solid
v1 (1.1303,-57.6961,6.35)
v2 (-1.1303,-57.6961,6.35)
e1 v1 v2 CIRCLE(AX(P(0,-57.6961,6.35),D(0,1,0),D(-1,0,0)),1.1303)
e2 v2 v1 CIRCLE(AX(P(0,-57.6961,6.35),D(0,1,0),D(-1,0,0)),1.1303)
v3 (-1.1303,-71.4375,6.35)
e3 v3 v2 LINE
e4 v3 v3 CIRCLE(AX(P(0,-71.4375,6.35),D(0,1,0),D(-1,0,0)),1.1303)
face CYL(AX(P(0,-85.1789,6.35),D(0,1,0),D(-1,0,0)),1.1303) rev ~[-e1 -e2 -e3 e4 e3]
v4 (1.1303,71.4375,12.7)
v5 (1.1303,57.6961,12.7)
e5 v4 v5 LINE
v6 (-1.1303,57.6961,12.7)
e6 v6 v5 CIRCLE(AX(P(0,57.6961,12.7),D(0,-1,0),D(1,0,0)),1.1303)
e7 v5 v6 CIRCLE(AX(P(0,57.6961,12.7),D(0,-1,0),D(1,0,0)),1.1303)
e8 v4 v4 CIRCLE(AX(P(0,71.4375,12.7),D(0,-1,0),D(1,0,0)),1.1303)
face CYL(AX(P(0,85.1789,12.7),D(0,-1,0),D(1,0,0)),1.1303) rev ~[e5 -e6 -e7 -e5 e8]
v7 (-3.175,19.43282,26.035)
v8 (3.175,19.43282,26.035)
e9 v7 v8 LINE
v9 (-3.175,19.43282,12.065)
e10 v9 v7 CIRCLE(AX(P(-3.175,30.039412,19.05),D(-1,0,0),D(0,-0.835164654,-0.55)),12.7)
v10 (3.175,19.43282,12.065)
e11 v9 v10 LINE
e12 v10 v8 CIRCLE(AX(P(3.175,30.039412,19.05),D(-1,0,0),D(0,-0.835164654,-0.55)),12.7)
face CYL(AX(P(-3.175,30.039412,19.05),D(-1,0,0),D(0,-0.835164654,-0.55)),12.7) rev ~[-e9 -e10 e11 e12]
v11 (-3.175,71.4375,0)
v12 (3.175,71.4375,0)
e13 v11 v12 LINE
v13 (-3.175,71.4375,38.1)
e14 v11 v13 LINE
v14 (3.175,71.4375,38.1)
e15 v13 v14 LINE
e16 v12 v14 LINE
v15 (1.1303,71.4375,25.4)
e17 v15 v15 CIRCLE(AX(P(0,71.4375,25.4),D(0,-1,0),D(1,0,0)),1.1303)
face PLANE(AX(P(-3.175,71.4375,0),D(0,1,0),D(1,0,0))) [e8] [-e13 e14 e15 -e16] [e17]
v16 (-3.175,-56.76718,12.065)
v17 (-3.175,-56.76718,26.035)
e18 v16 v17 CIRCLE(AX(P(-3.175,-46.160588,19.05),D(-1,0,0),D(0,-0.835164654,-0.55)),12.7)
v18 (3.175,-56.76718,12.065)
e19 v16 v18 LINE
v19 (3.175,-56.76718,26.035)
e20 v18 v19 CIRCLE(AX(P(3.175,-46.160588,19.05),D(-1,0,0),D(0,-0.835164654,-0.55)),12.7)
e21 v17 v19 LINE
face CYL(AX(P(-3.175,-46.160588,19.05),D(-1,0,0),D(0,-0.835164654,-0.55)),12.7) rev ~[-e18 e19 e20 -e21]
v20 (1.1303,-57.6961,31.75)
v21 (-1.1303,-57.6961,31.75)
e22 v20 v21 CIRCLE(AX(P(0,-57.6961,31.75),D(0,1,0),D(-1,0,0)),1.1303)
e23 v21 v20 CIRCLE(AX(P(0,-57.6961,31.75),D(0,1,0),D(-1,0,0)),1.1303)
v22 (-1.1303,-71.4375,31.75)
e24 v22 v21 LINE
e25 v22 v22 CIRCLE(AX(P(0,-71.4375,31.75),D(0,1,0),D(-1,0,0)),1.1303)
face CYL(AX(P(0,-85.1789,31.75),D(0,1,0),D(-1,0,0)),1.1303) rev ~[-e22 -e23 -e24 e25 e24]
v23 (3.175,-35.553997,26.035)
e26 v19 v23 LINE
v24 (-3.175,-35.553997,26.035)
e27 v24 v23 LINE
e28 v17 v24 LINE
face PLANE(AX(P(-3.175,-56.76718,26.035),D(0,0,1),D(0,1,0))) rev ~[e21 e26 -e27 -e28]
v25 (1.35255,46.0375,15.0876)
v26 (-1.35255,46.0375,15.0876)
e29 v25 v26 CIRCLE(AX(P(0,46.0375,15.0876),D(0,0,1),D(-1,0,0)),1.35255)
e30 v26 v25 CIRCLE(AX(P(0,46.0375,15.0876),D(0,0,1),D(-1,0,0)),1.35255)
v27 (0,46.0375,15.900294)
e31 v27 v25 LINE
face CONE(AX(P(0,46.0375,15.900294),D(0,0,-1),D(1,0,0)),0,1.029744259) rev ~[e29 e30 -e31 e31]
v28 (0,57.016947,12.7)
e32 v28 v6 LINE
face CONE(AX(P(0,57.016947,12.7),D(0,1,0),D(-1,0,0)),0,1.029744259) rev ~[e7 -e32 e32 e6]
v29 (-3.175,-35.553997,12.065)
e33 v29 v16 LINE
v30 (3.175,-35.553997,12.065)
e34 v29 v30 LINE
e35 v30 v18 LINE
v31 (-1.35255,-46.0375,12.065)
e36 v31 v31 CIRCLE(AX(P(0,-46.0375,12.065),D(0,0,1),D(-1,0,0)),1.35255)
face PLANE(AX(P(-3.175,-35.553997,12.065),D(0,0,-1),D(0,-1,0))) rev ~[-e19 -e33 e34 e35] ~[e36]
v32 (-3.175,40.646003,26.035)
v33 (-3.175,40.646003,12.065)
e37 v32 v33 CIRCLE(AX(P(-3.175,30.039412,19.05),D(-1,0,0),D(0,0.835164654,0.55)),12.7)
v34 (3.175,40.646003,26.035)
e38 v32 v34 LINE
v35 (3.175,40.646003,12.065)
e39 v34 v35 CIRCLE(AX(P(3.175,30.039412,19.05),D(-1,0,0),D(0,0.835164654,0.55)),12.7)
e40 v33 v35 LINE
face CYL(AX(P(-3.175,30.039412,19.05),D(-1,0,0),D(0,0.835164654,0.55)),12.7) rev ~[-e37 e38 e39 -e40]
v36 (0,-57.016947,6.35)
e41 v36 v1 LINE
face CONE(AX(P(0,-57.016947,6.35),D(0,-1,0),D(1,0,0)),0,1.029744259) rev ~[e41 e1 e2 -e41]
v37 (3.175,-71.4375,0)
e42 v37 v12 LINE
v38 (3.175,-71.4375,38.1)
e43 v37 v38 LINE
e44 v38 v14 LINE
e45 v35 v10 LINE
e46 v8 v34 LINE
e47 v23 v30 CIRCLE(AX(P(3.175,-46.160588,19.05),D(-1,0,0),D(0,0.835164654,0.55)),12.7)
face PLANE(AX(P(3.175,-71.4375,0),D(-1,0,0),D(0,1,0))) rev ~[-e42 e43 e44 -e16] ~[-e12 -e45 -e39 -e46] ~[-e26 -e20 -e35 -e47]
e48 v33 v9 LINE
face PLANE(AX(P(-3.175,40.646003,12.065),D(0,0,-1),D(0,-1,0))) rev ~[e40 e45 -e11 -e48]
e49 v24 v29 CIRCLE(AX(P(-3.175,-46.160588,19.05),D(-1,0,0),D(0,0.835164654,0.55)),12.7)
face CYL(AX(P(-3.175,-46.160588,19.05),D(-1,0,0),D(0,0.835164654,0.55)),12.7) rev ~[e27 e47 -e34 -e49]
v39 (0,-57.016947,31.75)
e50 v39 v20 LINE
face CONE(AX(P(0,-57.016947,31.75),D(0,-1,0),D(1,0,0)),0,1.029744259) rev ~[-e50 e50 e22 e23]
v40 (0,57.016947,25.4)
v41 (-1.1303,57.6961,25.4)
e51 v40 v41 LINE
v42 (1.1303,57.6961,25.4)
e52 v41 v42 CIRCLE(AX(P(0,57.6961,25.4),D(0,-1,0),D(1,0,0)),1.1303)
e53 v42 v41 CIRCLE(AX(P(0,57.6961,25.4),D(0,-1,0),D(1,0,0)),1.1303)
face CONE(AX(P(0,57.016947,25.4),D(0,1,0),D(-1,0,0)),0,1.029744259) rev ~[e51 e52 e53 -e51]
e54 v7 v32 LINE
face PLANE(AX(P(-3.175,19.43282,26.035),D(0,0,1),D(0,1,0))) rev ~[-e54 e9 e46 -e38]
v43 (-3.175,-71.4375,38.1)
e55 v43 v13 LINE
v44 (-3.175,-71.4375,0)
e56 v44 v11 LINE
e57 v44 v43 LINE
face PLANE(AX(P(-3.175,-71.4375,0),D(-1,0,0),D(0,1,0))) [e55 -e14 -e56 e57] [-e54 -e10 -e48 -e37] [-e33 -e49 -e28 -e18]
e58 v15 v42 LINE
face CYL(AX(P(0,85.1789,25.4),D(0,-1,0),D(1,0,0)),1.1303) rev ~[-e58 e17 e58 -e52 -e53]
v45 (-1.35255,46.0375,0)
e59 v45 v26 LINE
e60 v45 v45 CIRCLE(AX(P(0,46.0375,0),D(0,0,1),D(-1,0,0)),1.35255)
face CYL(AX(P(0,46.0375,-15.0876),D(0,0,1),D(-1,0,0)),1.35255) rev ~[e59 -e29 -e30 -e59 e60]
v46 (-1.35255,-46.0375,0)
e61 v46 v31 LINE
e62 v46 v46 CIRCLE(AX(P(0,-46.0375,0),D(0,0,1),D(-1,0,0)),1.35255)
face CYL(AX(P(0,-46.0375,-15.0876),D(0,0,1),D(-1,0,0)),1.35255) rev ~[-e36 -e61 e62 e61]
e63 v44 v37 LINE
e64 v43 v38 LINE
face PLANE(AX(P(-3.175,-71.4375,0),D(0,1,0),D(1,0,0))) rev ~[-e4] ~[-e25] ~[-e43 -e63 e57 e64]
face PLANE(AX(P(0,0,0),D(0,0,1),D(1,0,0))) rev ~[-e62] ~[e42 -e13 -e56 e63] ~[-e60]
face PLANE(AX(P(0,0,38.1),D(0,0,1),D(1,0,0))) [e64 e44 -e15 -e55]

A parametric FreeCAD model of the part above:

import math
import FreeCAD as App
import Part
import Sketcher
from FreeCAD import Vector
Q = App.Units.Quantity


def add_polygon(sketch, points):
    """Adds a closed chain of lines whose ends are joined by coincident constraints."""
    first, n = sketch.GeometryCount, len(points)
    for a, b in zip(points, points[1:] + points[:1]):
        sketch.addGeometry(Part.LineSegment(App.Vector(*a, 0), App.Vector(*b, 0)), False)
    for i in range(n):
        sketch.addConstraint(Sketcher.Constraint("Coincident", first + i, 2, first + (i + 1) % n, 1))

doc = App.newDocument("Part")
params = doc.addObject("Spreadsheet::Sheet", "Params")
for row, (alias, value) in enumerate([
    ("sketch1_width", "0.25 in"),
    ("sketch1_height", "5.625 in"),
    ("pad1_length", "1.5 in"),
    ("hole_diameter", "0.1065 in"),
    ("hole_depth", "0.594 in"),
    ("sketch3_diameter", "0.089 in"),
    ("hole2_diameter", "0.089 in"),
    ("hole2_depth", "0.541 in"),
    ("sketch4_diameter", "0.089 in"),
    ("hole3_diameter", "0.089 in"),
    ("hole3_depth", "0.541 in"),
    ("sketch5_radius", "0.5 in"),
    ("pocket1_length", "1 in"),
], start=1):
    params.set(f"A{row}", alias)
    params.set(f"B{row}", "=" + value)
    params.setAlias(f"B{row}", alias)

body = doc.addObject("PartDesign::Body", "Body")

# Sketch on XY plane
sketch1 = body.newObject("Sketcher::SketchObject", "Sketch")
sketch1.AttachmentSupport = (doc.getObject("XY_Plane"), [""])
sketch1.MapMode = "FlatFace"
add_polygon(sketch1, [(-3, 71), (-3, -71), (3, -71), (3, 71)])  # lines 0-3
sketch1.addConstraint(Sketcher.Constraint("Vertical", 0))
sketch1.addConstraint(Sketcher.Constraint("Horizontal", 1))
sketch1.addConstraint(Sketcher.Constraint("Vertical", 2))
sketch1.addConstraint(Sketcher.Constraint("Horizontal", 3))
sketch1.addConstraint(Sketcher.Constraint("Symmetric", 0, 2, 2, 2, -1, 1))
sketch1.addConstraint(Sketcher.Constraint("DistanceX", 1, 1, 1, 2, Q("0.25 in")))
sketch1.addConstraint(Sketcher.Constraint("DistanceY", 0, 2, 0, 1, Q("5.625 in")))
sketch1.setExpression("Constraints[9]", "Params.sketch1_width")
sketch1.setExpression("Constraints[10]", "Params.sketch1_height")
pad1 = body.newObject("PartDesign::Pad", "Pad")
pad1.Profile = sketch1
pad1.setExpression("Length", "Params.pad1_length")

# Sketch on XY plane
sketch2 = body.newObject("Sketcher::SketchObject", "Sketch001")
sketch2.AttachmentSupport = (doc.getObject("XY_Plane"), [""])
sketch2.MapMode = "FlatFace"
sketch2.addGeometry(Part.Circle(Vector(0, -46, 0), Vector(0, 0, 1), 1.4), False)
sketch2.addGeometry(Part.Circle(Vector(0, 46, 0), Vector(0, 0, 1), 1.4), False)
sketch2.addConstraint(Sketcher.Constraint("Equal", 0, 1))
sketch2.addConstraint(Sketcher.Constraint("Symmetric", 0, 3, 1, 3, -1, 1))
sketch2.addConstraint(Sketcher.Constraint("PointOnObject", 0, 3, -2))
sketch2.addConstraint(Sketcher.Constraint("Diameter", 0, Q("0.1065 in")))
sketch2.addConstraint(Sketcher.Constraint("DistanceY", 0, 3, -1, 1, Q("1.8125 in")))
doc.recompute()
hole = body.newObject("PartDesign::Hole", "Hole")
hole.Profile = sketch2
hole.ThreadType = "None"
hole.setExpression("Diameter", "Params.hole_diameter")
hole.DepthType = "Dimension"
hole.setExpression("Depth", "Params.hole_depth")
hole.DrillPoint = "Angled"
hole.DrillPointAngle = 118
hole.Reversed = True

# Sketch on XZ plane
sketch3 = body.newObject("Sketcher::SketchObject", "Sketch002")
sketch3.AttachmentSupport = (doc.getObject("XZ_Plane"), [""])
sketch3.MapMode = "FlatFace"
sketch3.AttachmentOffset = App.Placement(Vector(0, 0, 2.8125 * 25.4), App.Rotation())
sketch3.addGeometry(Part.Circle(Vector(0, 31.8, 0), Vector(0, 0, 1), 1.1), False)
sketch3.addGeometry(Part.Circle(Vector(0, 6.3, 0), Vector(0, 0, 1), 1.1), False)
sketch3.addConstraint(Sketcher.Constraint("Equal", 0, 1))
sketch3.addConstraint(Sketcher.Constraint("PointOnObject", 0, 3, -2))
sketch3.addConstraint(Sketcher.Constraint("PointOnObject", 1, 3, -2))
sketch3.addConstraint(Sketcher.Constraint("Diameter", 0, Q("0.089 in")))
sketch3.addConstraint(Sketcher.Constraint("DistanceY", 1, 3, 0, 3, Q("1 in")))
sketch3.addConstraint(Sketcher.Constraint("DistanceY", -1, 1, 0, 3, Q("1.25 in")))
sketch3.setExpression("Constraints[3]", "Params.sketch3_diameter")
doc.recompute()
hole2 = body.newObject("PartDesign::Hole", "Hole001")
hole2.Profile = sketch3
hole2.ThreadType = "None"
hole2.setExpression("Diameter", "Params.hole2_diameter")
hole2.DepthType = "Dimension"
hole2.setExpression("Depth", "Params.hole2_depth")
hole2.DrillPoint = "Angled"
hole2.DrillPointAngle = 118

# Sketch on XZ plane
sketch4 = body.newObject("Sketcher::SketchObject", "Sketch003")
sketch4.AttachmentSupport = (doc.getObject("XZ_Plane"), [""])
sketch4.MapMode = "FlatFace"
sketch4.AttachmentOffset = App.Placement(Vector(0, 0, -2.8125 * 25.4), App.Rotation())
sketch4.addGeometry(Part.Circle(Vector(0, 25.4, 0), Vector(0, 0, 1), 1.1), False)
sketch4.addGeometry(Part.Circle(Vector(0, 12.7, 0), Vector(0, 0, 1), 1.1), False)
sketch4.addConstraint(Sketcher.Constraint("Equal", 0, 1))
sketch4.addConstraint(Sketcher.Constraint("PointOnObject", 0, 3, -2))
sketch4.addConstraint(Sketcher.Constraint("PointOnObject", 1, 3, -2))
sketch4.addConstraint(Sketcher.Constraint("Diameter", 0, Q("0.089 in")))
sketch4.addConstraint(Sketcher.Constraint("DistanceY", -1, 1, 0, 3, Q("1 in")))
sketch4.addConstraint(Sketcher.Constraint("DistanceY", -1, 1, 1, 3, Q("0.5 in")))
sketch4.setExpression("Constraints[3]", "Params.sketch4_diameter")
doc.recompute()
hole3 = body.newObject("PartDesign::Hole", "Hole002")
hole3.Profile = sketch4
hole3.ThreadType = "None"
hole3.setExpression("Diameter", "Params.hole3_diameter")
hole3.DepthType = "Dimension"
hole3.setExpression("Depth", "Params.hole3_depth")
hole3.DrillPoint = "Angled"
hole3.DrillPointAngle = 118
hole3.Reversed = True

# Sketch on YZ plane
sketch5 = body.newObject("Sketcher::SketchObject", "Sketch004")
sketch5.AttachmentSupport = (doc.getObject("YZ_Plane"), [""])
sketch5.MapMode = "FlatFace"
sketch5.AttachmentOffset = App.Placement(Vector(0, 0, -0.125 * 25.4), App.Rotation())
sketch5.addGeometry(Part.LineSegment(Vector(19, 26, 0), Vector(41, 26, 0)), False)
sketch5.addGeometry(Part.ArcOfCircle(Part.Circle(Vector(30, 19, 0), Vector(0, 0, 1), 13), math.radians(-33), math.radians(33)), False)
sketch5.addGeometry(Part.LineSegment(Vector(41, 12, 0), Vector(19, 12, 0)), False)
sketch5.addGeometry(Part.ArcOfCircle(Part.Circle(Vector(30, 19, 0), Vector(0, 0, 1), 13), math.radians(147), math.radians(213)), False)
sketch5.addGeometry(Part.LineSegment(Vector(-36, 12, 0), Vector(-57, 12, 0)), False)
sketch5.addGeometry(Part.ArcOfCircle(Part.Circle(Vector(-46, 19, 0), Vector(0, 0, 1), 13), math.radians(147), math.radians(213)), False)
sketch5.addGeometry(Part.LineSegment(Vector(-57, 26, 0), Vector(-36, 26, 0)), False)
sketch5.addGeometry(Part.ArcOfCircle(Part.Circle(Vector(-46, 19, 0), Vector(0, 0, 1), 13), math.radians(-33), math.radians(33)), False)
sketch5.addConstraint(Sketcher.Constraint("Coincident", 0, 2, 1, 2))
sketch5.addConstraint(Sketcher.Constraint("Coincident", 1, 1, 2, 1))
sketch5.addConstraint(Sketcher.Constraint("Coincident", 2, 2, 3, 2))
sketch5.addConstraint(Sketcher.Constraint("Coincident", 3, 1, 0, 1))
sketch5.addConstraint(Sketcher.Constraint("Coincident", 4, 2, 5, 2))
sketch5.addConstraint(Sketcher.Constraint("Coincident", 5, 1, 6, 1))
sketch5.addConstraint(Sketcher.Constraint("Coincident", 6, 2, 7, 2))
sketch5.addConstraint(Sketcher.Constraint("Coincident", 7, 1, 4, 1))
sketch5.addConstraint(Sketcher.Constraint("Horizontal", 0))
sketch5.addConstraint(Sketcher.Constraint("Horizontal", 2))
sketch5.addConstraint(Sketcher.Constraint("Horizontal", 4))
sketch5.addConstraint(Sketcher.Constraint("Horizontal", 6))
sketch5.addConstraint(Sketcher.Constraint("Coincident", 3, 3, 1, 3))
sketch5.addConstraint(Sketcher.Constraint("Coincident", 7, 3, 5, 3))
sketch5.addConstraint(Sketcher.Constraint("Equal", 1, 3))
sketch5.addConstraint(Sketcher.Constraint("Equal", 3, 5))
sketch5.addConstraint(Sketcher.Constraint("Equal", 5, 7))
sketch5.addConstraint(Sketcher.Constraint("Horizontal", 3, 3, 5, 3))
sketch5.addConstraint(Sketcher.Constraint("Horizontal", 2, 2, 4, 2))
sketch5.addConstraint(Sketcher.Constraint("Horizontal", 3, 1, 5, 1))
sketch5.addConstraint(Sketcher.Constraint("Vertical", 0, 2, 1, 1))
sketch5.addConstraint(Sketcher.Constraint("Radius", 1, Q("0.5 in")))
sketch5.addConstraint(Sketcher.Constraint("DistanceX", 5, 3, 1, 3, Q("3 in")))
sketch5.addConstraint(Sketcher.Constraint("DistanceY", -1, 1, 1, 3, Q("0.75 in")))
sketch5.addConstraint(Sketcher.Constraint("DistanceY", 1, 1, 0, 2, Q("0.55 in")))
sketch5.addConstraint(Sketcher.Constraint("DistanceX", -1, 1, 1, 3, Q("30.039412 mm")))
sketch5.setExpression("Constraints[21]", "Params.sketch5_radius")
pocket1 = body.newObject("PartDesign::Pocket", "Pocket")
pocket1.Profile = sketch5
pocket1.setExpression("Length", "Params.pocket1_length")
pocket1.Reversed = True

doc.recompute()
